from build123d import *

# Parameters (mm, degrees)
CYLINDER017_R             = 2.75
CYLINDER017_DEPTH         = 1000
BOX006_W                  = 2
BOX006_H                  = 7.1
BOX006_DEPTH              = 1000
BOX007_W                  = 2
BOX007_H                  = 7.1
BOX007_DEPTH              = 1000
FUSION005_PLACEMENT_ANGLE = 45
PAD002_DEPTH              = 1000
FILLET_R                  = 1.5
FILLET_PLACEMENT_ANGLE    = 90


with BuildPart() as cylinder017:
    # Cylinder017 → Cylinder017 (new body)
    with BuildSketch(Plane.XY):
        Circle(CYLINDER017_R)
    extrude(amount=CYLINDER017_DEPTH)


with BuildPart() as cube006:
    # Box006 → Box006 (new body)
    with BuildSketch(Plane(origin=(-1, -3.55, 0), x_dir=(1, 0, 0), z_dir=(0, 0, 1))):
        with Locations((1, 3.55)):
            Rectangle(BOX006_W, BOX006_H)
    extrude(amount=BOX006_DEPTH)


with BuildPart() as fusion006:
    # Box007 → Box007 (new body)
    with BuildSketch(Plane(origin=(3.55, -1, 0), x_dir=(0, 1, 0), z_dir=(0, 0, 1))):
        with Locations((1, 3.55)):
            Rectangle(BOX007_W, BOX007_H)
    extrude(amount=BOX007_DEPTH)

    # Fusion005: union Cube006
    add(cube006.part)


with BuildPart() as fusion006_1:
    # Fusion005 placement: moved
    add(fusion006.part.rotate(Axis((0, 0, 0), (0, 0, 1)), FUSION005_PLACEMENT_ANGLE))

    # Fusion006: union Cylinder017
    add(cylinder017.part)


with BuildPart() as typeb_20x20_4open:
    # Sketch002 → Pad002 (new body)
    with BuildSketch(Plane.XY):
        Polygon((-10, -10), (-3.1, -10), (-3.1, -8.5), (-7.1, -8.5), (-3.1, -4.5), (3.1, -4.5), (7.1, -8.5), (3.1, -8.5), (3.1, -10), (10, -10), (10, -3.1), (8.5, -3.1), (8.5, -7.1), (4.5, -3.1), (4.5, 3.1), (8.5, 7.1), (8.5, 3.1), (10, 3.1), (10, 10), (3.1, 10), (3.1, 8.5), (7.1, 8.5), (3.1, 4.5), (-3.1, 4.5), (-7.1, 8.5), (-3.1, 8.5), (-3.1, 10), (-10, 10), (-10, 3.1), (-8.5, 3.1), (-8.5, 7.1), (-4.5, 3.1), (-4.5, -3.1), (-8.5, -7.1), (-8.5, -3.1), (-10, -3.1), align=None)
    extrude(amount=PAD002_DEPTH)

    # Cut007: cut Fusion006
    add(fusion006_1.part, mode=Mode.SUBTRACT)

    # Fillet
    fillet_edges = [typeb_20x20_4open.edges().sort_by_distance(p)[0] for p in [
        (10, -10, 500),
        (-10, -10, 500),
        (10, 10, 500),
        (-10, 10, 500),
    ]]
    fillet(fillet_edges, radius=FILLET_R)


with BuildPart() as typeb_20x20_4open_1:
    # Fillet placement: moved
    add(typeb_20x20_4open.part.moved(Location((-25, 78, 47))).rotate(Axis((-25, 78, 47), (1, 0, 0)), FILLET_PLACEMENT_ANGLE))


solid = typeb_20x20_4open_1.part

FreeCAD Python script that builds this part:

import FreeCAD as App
import Part
import Sketcher

V = App.Vector


def edges_at(feature, points):
    """Names of the edges that pass closest to the given points."""
    edges = feature.Shape.Edges
    near = lambda p: min(range(len(edges)), key=lambda i: edges[i].distToShape(Part.Vertex(*p))[0])
    return sorted({f"Edge{near(p) + 1}" for p in points})

doc = App.newDocument("Part")
body = doc.addObject("PartDesign::Body", "Body")

sketch1 = body.newObject("Sketcher::SketchObject", "Sketch")
sketch1.AttachmentSupport = (doc.getObject("XY_Plane"), [""])
sketch1.MapMode = "FlatFace"
sketch1.addGeometry(Part.Circle(V(0, 0, 0), V(0, 0, 1), 2.8), False)
sketch1.addConstraint([
    Sketcher.Constraint("Coincident", 0, 3, -1, 1),
    Sketcher.Constraint("Diameter", 0, 5.5),
])
pad1 = body.newObject("PartDesign::Pad", "Pad")
pad1.Profile = sketch1
pad1.Length = 1000
body2 = doc.addObject("PartDesign::Body", "Body001")

sketch2 = body2.newObject("Sketcher::SketchObject", "Sketch001")
sketch2.AttachmentSupport = (doc.getObject("XY_Plane001"), [""])
sketch2.MapMode = "FlatFace"
sketch2.addGeometry([
    Part.LineSegment(V(-1, 3.5, 0), V(-1, -3.5, 0)),
    Part.LineSegment(V(-1, -3.5, 0), V(1, -3.5, 0)),
    Part.LineSegment(V(1, -3.5, 0), V(1, 3.5, 0)),
    Part.LineSegment(V(1, 3.5, 0), V(-1, 3.5, 0)),
], False)
sketch2.addConstraint([
    Sketcher.Constraint("Coincident", 0, 2, 1, 1),
    Sketcher.Constraint("Coincident", 1, 2, 2, 1),
    Sketcher.Constraint("Coincident", 2, 2, 3, 1),
    Sketcher.Constraint("Coincident", 3, 2, 0, 1),
    Sketcher.Constraint("Vertical", 0),
    Sketcher.Constraint("Horizontal", 1),
    Sketcher.Constraint("Vertical", 2),
    Sketcher.Constraint("Horizontal", 3),
    Sketcher.Constraint("Symmetric", 0, 2, 2, 2, -1, 1),
    Sketcher.Constraint("DistanceX", 1, 1, 1, 2, 2.0),
    Sketcher.Constraint("DistanceY", 0, 2, 0, 1, 7.1),
])
pad2 = body2.newObject("PartDesign::Pad", "Pad001")
pad2.Profile = sketch2
pad2.Length = 1000
body3 = doc.addObject("PartDesign::Body", "Body002")

sketch3 = body3.newObject("Sketcher::SketchObject", "Sketch002")
sketch3.AttachmentSupport = (doc.getObject("XY_Plane002"), [""])
sketch3.MapMode = "FlatFace"
sketch3.addGeometry([
    Part.LineSegment(V(-3.5, -1, 0), V(3.5, -1, 0)),
    Part.LineSegment(V(3.5, -1, 0), V(3.5, 1, 0)),
    Part.LineSegment(V(3.5, 1, 0), V(-3.5, 1, 0)),
    Part.LineSegment(V(-3.5, 1, 0), V(-3.5, -1, 0)),
], False)
sketch3.addConstraint([
    Sketcher.Constraint("Coincident", 0, 2, 1, 1),
    Sketcher.Constraint("Coincident", 1, 2, 2, 1),
    Sketcher.Constraint("Coincident", 2, 2, 3, 1),
    Sketcher.Constraint("Coincident", 3, 2, 0, 1),
    Sketcher.Constraint("Horizontal", 0),
    Sketcher.Constraint("Vertical", 1),
    Sketcher.Constraint("Horizontal", 2),
    Sketcher.Constraint("Vertical", 3),
    Sketcher.Constraint("Symmetric", 0, 2, 2, 2, -1, 1),
    Sketcher.Constraint("DistanceY", 1, 1, 1, 2, 2.0),
    Sketcher.Constraint("DistanceX", 0, 1, 0, 2, 7.1),
])
pad3 = body3.newObject("PartDesign::Pad", "Pad002")
pad3.Profile = sketch3
pad3.Length = 1000
doc.recompute()

boolean = body3.newObject("PartDesign::Boolean", "Boolean")
boolean.Type = "Fuse"
boolean.addObjects([body2])
body4 = doc.addObject("PartDesign::Body", "Body003")
doc.recompute()

body3.Placement = App.Placement(V(0, 0, 0), App.Rotation(V(0, 0, 1), 45))
boolean2 = body4.newObject("PartDesign::Boolean", "Boolean001")
boolean2.Type = "Fuse"
boolean2.addObjects([body3])
doc.recompute()

boolean3 = body4.newObject("PartDesign::Boolean", "Boolean002")
boolean3.Type = "Fuse"
boolean3.addObjects([body])
body5 = doc.addObject("PartDesign::Body", "Body004")

sketch4 = body5.newObject("Sketcher::SketchObject", "Sketch003")
sketch4.AttachmentSupport = (doc.getObject("XY_Plane004"), [""])
sketch4.MapMode = "FlatFace"
sketch4.addGeometry([
    Part.LineSegment(V(-10, -10, 0), V(-3.1, -10, 0)),
    Part.LineSegment(V(-3.1, -10, 0), V(-3.1, -8.5, 0)),
    Part.LineSegment(V(-3.1, -8.5, 0), V(-7.1, -8.5, 0)),
    Part.LineSegment(V(-7.1, -8.5, 0), V(-3.1, -4.5, 0)),
    Part.LineSegment(V(-3.1, -4.5, 0), V(3.1, -4.5, 0)),
    Part.LineSegment(V(3.1, -4.5, 0), V(7.1, -8.5, 0)),
    Part.LineSegment(V(7.1, -8.5, 0), V(3.1, -8.5, 0)),
    Part.LineSegment(V(3.1, -8.5, 0), V(3.1, -10, 0)),
    Part.LineSegment(V(3.1, -10, 0), V(10, -10, 0)),
    Part.LineSegment(V(10, -10, 0), V(10, -3.1, 0)),
    Part.LineSegment(V(10, -3.1, 0), V(8.5, -3.1, 0)),
    Part.LineSegment(V(8.5, -3.1, 0), V(8.5, -7.1, 0)),
    Part.LineSegment(V(8.5, -7.1, 0), V(4.5, -3.1, 0)),
    Part.LineSegment(V(4.5, -3.1, 0), V(4.5, 3.1, 0)),
    Part.LineSegment(V(4.5, 3.1, 0), V(8.5, 7.1, 0)),
    Part.LineSegment(V(8.5, 7.1, 0), V(8.5, 3.1, 0)),
    Part.LineSegment(V(8.5, 3.1, 0), V(10, 3.1, 0)),
    Part.LineSegment(V(10, 3.1, 0), V(10, 10, 0)),
    Part.LineSegment(V(10, 10, 0), V(3.1, 10, 0)),
    Part.LineSegment(V(3.1, 10, 0), V(3.1, 8.5, 0)),
    Part.LineSegment(V(3.1, 8.5, 0), V(7.1, 8.5, 0)),
    Part.LineSegment(V(7.1, 8.5, 0), V(3.1, 4.5, 0)),
    Part.LineSegment(V(3.1, 4.5, 0), V(-3.1, 4.5, 0)),
    Part.LineSegment(V(-3.1, 4.5, 0), V(-7.1, 8.5, 0)),
    Part.LineSegment(V(-7.1, 8.5, 0), V(-3.1, 8.5, 0)),
    Part.LineSegment(V(-3.1, 8.5, 0), V(-3.1, 10, 0)),
    Part.LineSegment(V(-3.1, 10, 0), V(-10, 10, 0)),
    Part.LineSegment(V(-10, 10, 0), V(-10, 3.1, 0)),
    Part.LineSegment(V(-10, 3.1, 0), V(-8.5, 3.1, 0)),
    Part.LineSegment(V(-8.5, 3.1, 0), V(-8.5, 7.1, 0)),
    Part.LineSegment(V(-8.5, 7.1, 0), V(-4.5, 3.1, 0)),
    Part.LineSegment(V(-4.5, 3.1, 0), V(-4.5, -3.1, 0)),
    Part.LineSegment(V(-4.5, -3.1, 0), V(-8.5, -7.1, 0)),
    Part.LineSegment(V(-8.5, -7.1, 0), V(-8.5, -3.1, 0)),
    Part.LineSegment(V(-8.5, -3.1, 0), V(-10, -3.1, 0)),
    Part.LineSegment(V(-10, -3.1, 0), V(-10, -10, 0)),
], False)
sketch4.addConstraint([
    Sketcher.Constraint("Coincident", 0, 2, 1, 1),
    Sketcher.Constraint("Coincident", 1, 2, 2, 1),
    Sketcher.Constraint("Coincident", 2, 2, 3, 1),
    Sketcher.Constraint("Coincident", 3, 2, 4, 1),
    Sketcher.Constraint("Coincident", 4, 2, 5, 1),
    Sketcher.Constraint("Coincident", 5, 2, 6, 1),
    Sketcher.Constraint("Coincident", 6, 2, 7, 1),
    Sketcher.Constraint("Coincident", 7, 2, 8, 1),
    Sketcher.Constraint("Coincident", 8, 2, 9, 1),
    Sketcher.Constraint("Coincident", 9, 2, 10, 1),
    Sketcher.Constraint("Coincident", 10, 2, 11, 1),
    Sketcher.Constraint("Coincident", 11, 2, 12, 1),
    Sketcher.Constraint("Coincident", 12, 2, 13, 1),
    Sketcher.Constraint("Coincident", 13, 2, 14, 1),
    Sketcher.Constraint("Coincident", 14, 2, 15, 1),
    Sketcher.Constraint("Coincident", 15, 2, 16, 1),
    Sketcher.Constraint("Coincident", 16, 2, 17, 1),
    Sketcher.Constraint("Coincident", 17, 2, 18, 1),
    Sketcher.Constraint("Coincident", 18, 2, 19, 1),
    Sketcher.Constraint("Coincident", 19, 2, 20, 1),
    Sketcher.Constraint("Coincident", 20, 2, 21, 1),
    Sketcher.Constraint("Coincident", 21, 2, 22, 1),
    Sketcher.Constraint("Coincident", 22, 2, 23, 1),
    Sketcher.Constraint("Coincident", 23, 2, 24, 1),
    Sketcher.Constraint("Coincident", 24, 2, 25, 1),
    Sketcher.Constraint("Coincident", 25, 2, 26, 1),
    Sketcher.Constraint("Coincident", 26, 2, 27, 1),
    Sketcher.Constraint("Coincident", 27, 2, 28, 1),
    Sketcher.Constraint("Coincident", 28, 2, 29, 1),
    Sketcher.Constraint("Coincident", 29, 2, 30, 1),
    Sketcher.Constraint("Coincident", 30, 2, 31, 1),
    Sketcher.Constraint("Coincident", 31, 2, 32, 1),
    Sketcher.Constraint("Coincident", 32, 2, 33, 1),
    Sketcher.Constraint("Coincident", 33, 2, 34, 1),
    Sketcher.Constraint("Coincident", 34, 2, 35, 1),
    Sketcher.Constraint("Coincident", 35, 2, 0, 1),
    Sketcher.Constraint("Horizontal", 0),
    Sketcher.Constraint("Vertical", 1),
    Sketcher.Constraint("Horizontal", 2),
    Sketcher.Constraint("Horizontal", 4),
    Sketcher.Constraint("Horizontal", 6),
    Sketcher.Constraint("Vertical", 7),
    Sketcher.Constraint("Horizontal", 8),
    Sketcher.Constraint("Vertical", 9),
    Sketcher.Constraint("Horizontal", 10),
    Sketcher.Constraint("Vertical", 11),
    Sketcher.Constraint("Vertical", 13),
    Sketcher.Constraint("Vertical", 15),
    Sketcher.Constraint("Horizontal", 16),
    Sketcher.Constraint("Vertical", 17),
    Sketcher.Constraint("Horizontal", 18),
    Sketcher.Constraint("Vertical", 19),
    Sketcher.Constraint("Horizontal", 20),
    Sketcher.Constraint("Horizontal", 22),
    Sketcher.Constraint("Horizontal", 24),
    Sketcher.Constraint("Vertical", 25),
    Sketcher.Constraint("Horizontal", 26),
    Sketcher.Constraint("Vertical", 27),
    Sketcher.Constraint("Horizontal", 28),
    Sketcher.Constraint("Vertical", 29),
    Sketcher.Constraint("Vertical", 31),
    Sketcher.Constraint("Vertical", 33),
    Sketcher.Constraint("Horizontal", 34),
    Sketcher.Constraint("Vertical", 35),
    Sketcher.Constraint("Symmetric", 0, 2, 18, 2, -1, 1),
    Sketcher.Constraint("Symmetric", 2, 2, 20, 2, -1, 1),
    Sketcher.Constraint("Symmetric", 3, 2, 21, 2, -1, 1),
    Sketcher.Constraint("Symmetric", 5, 2, 23, 2, -1, 1),
    Sketcher.Constraint("Symmetric", 7, 2, 25, 2, -1, 1),
    Sketcher.Constraint("Symmetric", 9, 2, 27, 2, -1, 1),
    Sketcher.Constraint("Symmetric", 11, 2, 29, 2, -1, 1),
    Sketcher.Constraint("Symmetric", 12, 2, 30, 2, -1, 1),
    Sketcher.Constraint("Symmetric", 14, 2, 32, 2, -1, 1),
    Sketcher.Constraint("Symmetric", 16, 2, 34, 2, -1, 1),
    Sketcher.Constraint("Symmetric", 2, 2, 5, 2, -2),
    Sketcher.Constraint("Symmetric", 0, 2, 7, 2, -2),
    Sketcher.Constraint("Symmetric", 16, 2, 27, 2, -2),
    Sketcher.Constraint("Symmetric", 14, 2, 29, 2, -2),
    Sketcher.Constraint("Perpendicular", 3, 5),
    Sketcher.Constraint("Parallel", 5, 12),
    Sketcher.Constraint("Perpendicular", 12, 14),
    Sketcher.Constraint("Perpendicular", 21, 23),
    Sketcher.Constraint("Perpendicular", 30, 32),
    Sketcher.Constraint("Horizontal", 10, 2, 12, 2),
    Sketcher.Constraint("Horizontal", 13, 2, 15, 2),
    Sketcher.Constraint("Vertical", 1, 2, 3, 2),
    Sketcher.Constraint("Equal", 34, 1),
    Sketcher.Constraint("Equal", 26, 9),
    Sketcher.Constraint("Equal", 24, 11),
    Sketcher.Constraint("Equal", 22, 13),
    Sketcher.Constraint("DistanceX", 2, 2, 2, 1, 4.0),
    Sketcher.Constraint("DistanceX", 0, 1, 0, 2, 6.9),
    Sketcher.Constraint("DistanceX", 4, 1, 4, 2, 6.2),
    Sketcher.Constraint("DistanceX", 10, 2, 10, 1, 1.5),
])
pad4 = body5.newObject("PartDesign::Pad", "Pad003")
pad4.Profile = sketch4
pad4.Length = 1000
doc.recompute()

boolean4 = body5.newObject("PartDesign::Boolean", "Boolean003")
boolean4.Type = "Cut"
boolean4.addObjects([body4])
doc.recompute()

fillet = body5.newObject("PartDesign::Fillet", "Fillet")
fillet.Base = (boolean4, edges_at(boolean4, [
    (10, -10, 500),
    (-10, -10, 500),
    (10, 10, 500),
    (-10, 10, 500),
]))
fillet.Radius = 1.5
body6 = doc.addObject("PartDesign::Body", "Body005")
doc.recompute()

body5.Placement = App.Placement(V(-25, 78, 47), App.Rotation(V(1, 0, 0), 90))
boolean5 = body6.newObject("PartDesign::Boolean", "Boolean004")
boolean5.Type = "Fuse"
boolean5.addObjects([body5])

doc.recompute()
